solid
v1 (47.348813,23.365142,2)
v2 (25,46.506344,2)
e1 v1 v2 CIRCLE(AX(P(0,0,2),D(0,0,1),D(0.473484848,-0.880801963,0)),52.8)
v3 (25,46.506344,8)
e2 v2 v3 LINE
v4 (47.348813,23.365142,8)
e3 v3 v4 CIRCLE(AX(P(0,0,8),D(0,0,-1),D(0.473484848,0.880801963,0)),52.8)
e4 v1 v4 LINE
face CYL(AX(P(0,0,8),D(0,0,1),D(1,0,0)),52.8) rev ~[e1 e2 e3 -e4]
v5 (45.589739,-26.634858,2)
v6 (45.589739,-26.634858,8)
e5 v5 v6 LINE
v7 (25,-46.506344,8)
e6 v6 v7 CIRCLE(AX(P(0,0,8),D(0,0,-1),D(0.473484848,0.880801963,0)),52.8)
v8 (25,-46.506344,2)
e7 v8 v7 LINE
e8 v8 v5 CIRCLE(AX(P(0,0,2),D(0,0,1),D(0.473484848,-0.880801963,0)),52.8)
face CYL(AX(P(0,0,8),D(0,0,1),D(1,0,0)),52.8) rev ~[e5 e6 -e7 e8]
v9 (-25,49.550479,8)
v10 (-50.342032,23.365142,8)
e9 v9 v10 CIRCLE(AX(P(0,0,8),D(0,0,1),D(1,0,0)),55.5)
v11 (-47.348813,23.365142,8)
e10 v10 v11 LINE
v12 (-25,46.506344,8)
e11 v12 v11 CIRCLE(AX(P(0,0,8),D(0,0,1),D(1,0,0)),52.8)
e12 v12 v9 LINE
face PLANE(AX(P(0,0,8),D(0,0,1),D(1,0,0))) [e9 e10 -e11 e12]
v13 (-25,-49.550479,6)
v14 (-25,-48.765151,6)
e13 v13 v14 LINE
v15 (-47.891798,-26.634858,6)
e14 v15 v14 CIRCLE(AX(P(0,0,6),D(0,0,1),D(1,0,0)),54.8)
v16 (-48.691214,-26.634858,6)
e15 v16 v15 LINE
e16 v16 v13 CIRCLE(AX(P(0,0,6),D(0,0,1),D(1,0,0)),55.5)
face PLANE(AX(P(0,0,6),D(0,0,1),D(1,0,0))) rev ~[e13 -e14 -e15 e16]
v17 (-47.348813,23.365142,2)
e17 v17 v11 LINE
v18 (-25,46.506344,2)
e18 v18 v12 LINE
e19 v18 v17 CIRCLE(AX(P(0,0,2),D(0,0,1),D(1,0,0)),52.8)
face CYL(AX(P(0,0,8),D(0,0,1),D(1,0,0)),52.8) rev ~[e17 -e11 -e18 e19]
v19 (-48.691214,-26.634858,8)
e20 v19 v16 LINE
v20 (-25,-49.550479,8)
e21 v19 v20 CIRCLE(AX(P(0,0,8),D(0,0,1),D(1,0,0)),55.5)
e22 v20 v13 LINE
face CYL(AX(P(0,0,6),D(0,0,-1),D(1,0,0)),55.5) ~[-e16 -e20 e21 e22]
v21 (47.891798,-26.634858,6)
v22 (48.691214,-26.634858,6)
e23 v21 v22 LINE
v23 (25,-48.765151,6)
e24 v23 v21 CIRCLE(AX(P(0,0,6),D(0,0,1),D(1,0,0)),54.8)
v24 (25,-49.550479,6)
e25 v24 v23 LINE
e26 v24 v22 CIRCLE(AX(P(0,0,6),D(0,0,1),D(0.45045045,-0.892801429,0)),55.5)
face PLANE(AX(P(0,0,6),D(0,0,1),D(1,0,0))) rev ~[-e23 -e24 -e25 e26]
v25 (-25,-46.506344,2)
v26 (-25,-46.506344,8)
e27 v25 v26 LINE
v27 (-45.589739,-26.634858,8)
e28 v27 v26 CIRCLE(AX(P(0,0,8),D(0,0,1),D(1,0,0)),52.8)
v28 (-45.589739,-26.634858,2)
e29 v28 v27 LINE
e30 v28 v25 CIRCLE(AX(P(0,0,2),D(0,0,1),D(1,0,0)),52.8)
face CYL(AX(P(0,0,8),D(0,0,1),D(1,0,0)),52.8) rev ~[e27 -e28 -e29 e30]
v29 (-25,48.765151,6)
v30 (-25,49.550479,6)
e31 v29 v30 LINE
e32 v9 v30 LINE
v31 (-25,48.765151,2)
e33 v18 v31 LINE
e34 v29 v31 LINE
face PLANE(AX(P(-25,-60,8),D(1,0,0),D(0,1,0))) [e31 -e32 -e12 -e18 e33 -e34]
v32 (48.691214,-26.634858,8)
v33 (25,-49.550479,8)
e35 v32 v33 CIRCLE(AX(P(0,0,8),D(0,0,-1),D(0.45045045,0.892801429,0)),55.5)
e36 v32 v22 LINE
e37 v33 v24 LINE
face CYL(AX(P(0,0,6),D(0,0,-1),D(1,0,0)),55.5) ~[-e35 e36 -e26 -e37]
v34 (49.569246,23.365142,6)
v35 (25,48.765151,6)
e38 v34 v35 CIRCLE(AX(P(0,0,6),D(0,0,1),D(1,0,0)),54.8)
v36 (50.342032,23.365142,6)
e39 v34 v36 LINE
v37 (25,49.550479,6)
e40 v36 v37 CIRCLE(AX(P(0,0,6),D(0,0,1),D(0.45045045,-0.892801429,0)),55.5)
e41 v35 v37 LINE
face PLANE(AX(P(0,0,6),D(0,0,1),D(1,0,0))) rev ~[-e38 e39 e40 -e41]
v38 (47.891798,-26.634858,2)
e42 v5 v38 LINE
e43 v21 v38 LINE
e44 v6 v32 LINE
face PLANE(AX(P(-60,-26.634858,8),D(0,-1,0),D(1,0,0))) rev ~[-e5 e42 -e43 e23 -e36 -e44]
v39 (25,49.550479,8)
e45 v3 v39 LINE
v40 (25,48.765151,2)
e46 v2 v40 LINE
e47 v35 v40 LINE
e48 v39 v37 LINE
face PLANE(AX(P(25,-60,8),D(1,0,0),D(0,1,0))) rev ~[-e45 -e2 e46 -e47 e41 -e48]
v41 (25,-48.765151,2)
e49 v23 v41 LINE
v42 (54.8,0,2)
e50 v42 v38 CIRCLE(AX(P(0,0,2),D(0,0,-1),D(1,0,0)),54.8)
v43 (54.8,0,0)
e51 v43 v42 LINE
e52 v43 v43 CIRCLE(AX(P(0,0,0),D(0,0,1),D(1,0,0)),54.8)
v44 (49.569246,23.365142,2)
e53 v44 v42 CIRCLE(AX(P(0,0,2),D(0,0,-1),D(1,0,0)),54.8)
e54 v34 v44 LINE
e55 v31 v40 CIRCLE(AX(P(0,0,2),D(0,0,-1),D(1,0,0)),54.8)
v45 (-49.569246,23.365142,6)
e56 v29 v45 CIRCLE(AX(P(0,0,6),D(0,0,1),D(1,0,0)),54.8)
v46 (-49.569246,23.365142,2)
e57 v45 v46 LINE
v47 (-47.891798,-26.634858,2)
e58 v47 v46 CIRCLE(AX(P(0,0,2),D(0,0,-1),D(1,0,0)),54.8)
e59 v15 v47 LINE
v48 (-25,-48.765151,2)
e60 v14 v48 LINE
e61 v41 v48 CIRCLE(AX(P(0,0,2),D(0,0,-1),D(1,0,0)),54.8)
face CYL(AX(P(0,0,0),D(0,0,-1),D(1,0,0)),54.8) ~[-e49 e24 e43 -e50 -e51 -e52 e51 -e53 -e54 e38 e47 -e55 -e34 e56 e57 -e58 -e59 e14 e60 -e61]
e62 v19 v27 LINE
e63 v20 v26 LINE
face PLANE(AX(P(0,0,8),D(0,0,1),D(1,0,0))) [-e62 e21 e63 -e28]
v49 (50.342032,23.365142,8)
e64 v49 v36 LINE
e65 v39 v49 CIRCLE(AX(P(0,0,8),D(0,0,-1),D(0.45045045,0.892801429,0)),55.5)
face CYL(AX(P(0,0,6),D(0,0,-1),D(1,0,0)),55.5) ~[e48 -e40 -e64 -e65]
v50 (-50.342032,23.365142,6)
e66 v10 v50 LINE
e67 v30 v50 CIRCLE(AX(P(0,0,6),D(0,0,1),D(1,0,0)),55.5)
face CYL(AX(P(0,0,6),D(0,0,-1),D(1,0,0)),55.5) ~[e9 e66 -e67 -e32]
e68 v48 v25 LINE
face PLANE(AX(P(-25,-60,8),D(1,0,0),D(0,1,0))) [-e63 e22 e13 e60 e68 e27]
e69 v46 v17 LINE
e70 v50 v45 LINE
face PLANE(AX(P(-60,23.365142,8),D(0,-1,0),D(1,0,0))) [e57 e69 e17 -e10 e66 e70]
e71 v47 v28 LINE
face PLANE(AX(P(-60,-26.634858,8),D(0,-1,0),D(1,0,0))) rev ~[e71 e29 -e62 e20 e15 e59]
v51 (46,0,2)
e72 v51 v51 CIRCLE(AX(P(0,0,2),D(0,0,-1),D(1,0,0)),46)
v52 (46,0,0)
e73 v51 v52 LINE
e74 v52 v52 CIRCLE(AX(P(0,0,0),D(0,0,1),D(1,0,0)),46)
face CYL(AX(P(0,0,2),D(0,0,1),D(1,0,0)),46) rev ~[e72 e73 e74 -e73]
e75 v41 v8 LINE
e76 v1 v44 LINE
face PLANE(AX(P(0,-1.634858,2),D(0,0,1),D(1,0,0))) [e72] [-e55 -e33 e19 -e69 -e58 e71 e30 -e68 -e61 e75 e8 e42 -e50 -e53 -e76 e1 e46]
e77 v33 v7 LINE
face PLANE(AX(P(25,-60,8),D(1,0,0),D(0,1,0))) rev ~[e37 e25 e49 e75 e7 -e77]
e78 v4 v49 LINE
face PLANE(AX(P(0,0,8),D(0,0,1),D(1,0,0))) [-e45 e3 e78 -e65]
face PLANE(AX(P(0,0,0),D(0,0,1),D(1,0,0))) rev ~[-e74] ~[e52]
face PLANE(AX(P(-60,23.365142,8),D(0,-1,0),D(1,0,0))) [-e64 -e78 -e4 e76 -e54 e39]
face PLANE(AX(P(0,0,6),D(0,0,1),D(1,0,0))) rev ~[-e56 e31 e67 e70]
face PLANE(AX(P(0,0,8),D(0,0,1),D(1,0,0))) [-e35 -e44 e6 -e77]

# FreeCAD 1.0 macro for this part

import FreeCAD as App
import Part
import Sketcher
from FreeCAD import Vector
Q = App.Units.Quantity


def add_polygon(sketch, points):
    """Adds a closed chain of lines whose ends are joined by coincident constraints."""
    first, n = sketch.GeometryCount, len(points)
    for a, b in zip(points, points[1:] + points[:1]):
        sketch.addGeometry(Part.LineSegment(App.Vector(*a, 0), App.Vector(*b, 0)), False)
    for i in range(n):
        sketch.addConstraint(Sketcher.Constraint("Coincident", first + i, 2, first + (i + 1) % n, 1))

doc = App.newDocument("Part")
body = doc.addObject("PartDesign::Body", "Body")

# Sketch on XY plane
sketch1 = doc.addObject("Sketcher::SketchObject", "Sketch")
body.addObject(sketch1)
sketch1.AttachmentSupport = (doc.XY_Plane, [""])
sketch1.MapMode = "FlatFace"
sketch1.addGeometry(Part.Circle(Vector(0, 0, 0), Vector(0, 0, 1), 54.8), False)
sketch1.addConstraint([
    Sketcher.Constraint("Coincident", 0, 3, -1, 1),
    Sketcher.Constraint("Diameter", 0, Q("109.6 mm")),
])
pad1 = doc.addObject("PartDesign::Pad", "Pad")
body.addObject(pad1)
pad1.Profile = sketch1
pad1.Length = 6

# Sketch on XY plane
sketch2 = doc.addObject("Sketcher::SketchObject", "Sketch001")
body.addObject(sketch2)
sketch2.AttachmentSupport = (doc.XY_Plane, [""])
sketch2.MapMode = "FlatFace"
sketch2.AttachmentOffset = App.Placement(Vector(0, 0, 6), App.Rotation())
sketch2.addGeometry(Part.Circle(Vector(0, 0, 0), Vector(0, 0, 1), 55.5), False)
sketch2.addConstraint([
    Sketcher.Constraint("Coincident", 0, 3, -1, 1),
    Sketcher.Constraint("Diameter", 0, Q("111 mm")),
])
pad2 = doc.addObject("PartDesign::Pad", "Pad001")
body.addObject(pad2)
pad2.Profile = sketch2
pad2.Length = 2

# Sketch on XY plane
sketch3 = doc.addObject("Sketcher::SketchObject", "Sketch002")
body.addObject(sketch3)
sketch3.AttachmentSupport = (doc.XY_Plane, [""])
sketch3.MapMode = "FlatFace"
sketch3.AttachmentOffset = App.Placement(Vector(0, 0, 8), App.Rotation())
sketch3.addGeometry(Part.Circle(Vector(0, 0, 0), Vector(0, 0, 1), 52.8), False)
sketch3.addConstraint([
    Sketcher.Constraint("Coincident", 0, 3, -1, 1),
    Sketcher.Constraint("Diameter", 0, Q("105.6 mm")),
])
pocket1 = doc.addObject("PartDesign::Pocket", "Pocket")
body.addObject(pocket1)
pocket1.Profile = sketch3
pocket1.Length = 6

# Sketch on XY plane
sketch4 = doc.addObject("Sketcher::SketchObject", "Sketch003")
body.addObject(sketch4)
sketch4.AttachmentSupport = (doc.XY_Plane, [""])
sketch4.MapMode = "FlatFace"
sketch4.AttachmentOffset = App.Placement(Vector(0, 0, 2), App.Rotation())
sketch4.addGeometry(Part.Circle(Vector(0, 0, 0), Vector(0, 0, 1), 46), False)
sketch4.addConstraint([
    Sketcher.Constraint("Coincident", 0, 3, -1, 1),
    Sketcher.Constraint("Diameter", 0, Q("92 mm")),
])
pocket2 = doc.addObject("PartDesign::Pocket", "Pocket001")
body.addObject(pocket2)
pocket2.Profile = sketch4
pocket2.Length = 25

# Sketch on XY plane
sketch5 = doc.addObject("Sketcher::SketchObject", "Sketch004")
body.addObject(sketch5)
sketch5.AttachmentSupport = (doc.XY_Plane, [""])
sketch5.MapMode = "FlatFace"
sketch5.AttachmentOffset = App.Placement(Vector(0, 0, 8), App.Rotation())
add_polygon(sketch5, [(-25, 60), (-25, -60), (25, -60), (25, 60)])  # lines 0-3
sketch5.addConstraint([
    Sketcher.Constraint("Vertical", 0),
    Sketcher.Constraint("Horizontal", 1),
    Sketcher.Constraint("Vertical", 2),
    Sketcher.Constraint("Horizontal", 3),
    Sketcher.Constraint("Symmetric", 0, 2, 2, 2, -1, 1),
    Sketcher.Constraint("DistanceX", 1, 1, 1, 2, Q("50 mm")),
    Sketcher.Constraint("DistanceY", 0, 2, 0, 1, Q("120 mm")),
])
pocket3 = doc.addObject("PartDesign::Pocket", "Pocket002")
body.addObject(pocket3)
pocket3.Profile = sketch5
pocket3.Length = 6

# Sketch on XY plane
sketch6 = doc.addObject("Sketcher::SketchObject", "Sketch005")
body.addObject(sketch6)
sketch6.AttachmentSupport = (doc.XY_Plane, [""])
sketch6.MapMode = "FlatFace"
sketch6.AttachmentOffset = App.Placement(Vector(0, 0, 8), App.Rotation())
add_polygon(sketch6, [(-60, 23.365142), (-60, -26.634858), (60, -26.634858), (60, 23.365142)])  # lines 0-3
sketch6.addConstraint([
    Sketcher.Constraint("Vertical", 0),
    Sketcher.Constraint("Horizontal", 1),
    Sketcher.Constraint("Vertical", 2),
    Sketcher.Constraint("Horizontal", 3),
    Sketcher.Constraint("DistanceX", 1, 1, 1, 2, Q("120 mm")),
    Sketcher.Constraint("DistanceY", 0, 2, 0, 1, Q("50 mm")),
    Sketcher.Constraint("DistanceX", 0, 2, -1, 1, Q("60 mm")),
    Sketcher.Constraint("DistanceY", 0, 2, -1, 1, Q("26.634858 mm")),
])
pocket4 = doc.addObject("PartDesign::Pocket", "Pocket003")
body.addObject(pocket4)
pocket4.Profile = sketch6
pocket4.Length = 6

doc.recompute()
